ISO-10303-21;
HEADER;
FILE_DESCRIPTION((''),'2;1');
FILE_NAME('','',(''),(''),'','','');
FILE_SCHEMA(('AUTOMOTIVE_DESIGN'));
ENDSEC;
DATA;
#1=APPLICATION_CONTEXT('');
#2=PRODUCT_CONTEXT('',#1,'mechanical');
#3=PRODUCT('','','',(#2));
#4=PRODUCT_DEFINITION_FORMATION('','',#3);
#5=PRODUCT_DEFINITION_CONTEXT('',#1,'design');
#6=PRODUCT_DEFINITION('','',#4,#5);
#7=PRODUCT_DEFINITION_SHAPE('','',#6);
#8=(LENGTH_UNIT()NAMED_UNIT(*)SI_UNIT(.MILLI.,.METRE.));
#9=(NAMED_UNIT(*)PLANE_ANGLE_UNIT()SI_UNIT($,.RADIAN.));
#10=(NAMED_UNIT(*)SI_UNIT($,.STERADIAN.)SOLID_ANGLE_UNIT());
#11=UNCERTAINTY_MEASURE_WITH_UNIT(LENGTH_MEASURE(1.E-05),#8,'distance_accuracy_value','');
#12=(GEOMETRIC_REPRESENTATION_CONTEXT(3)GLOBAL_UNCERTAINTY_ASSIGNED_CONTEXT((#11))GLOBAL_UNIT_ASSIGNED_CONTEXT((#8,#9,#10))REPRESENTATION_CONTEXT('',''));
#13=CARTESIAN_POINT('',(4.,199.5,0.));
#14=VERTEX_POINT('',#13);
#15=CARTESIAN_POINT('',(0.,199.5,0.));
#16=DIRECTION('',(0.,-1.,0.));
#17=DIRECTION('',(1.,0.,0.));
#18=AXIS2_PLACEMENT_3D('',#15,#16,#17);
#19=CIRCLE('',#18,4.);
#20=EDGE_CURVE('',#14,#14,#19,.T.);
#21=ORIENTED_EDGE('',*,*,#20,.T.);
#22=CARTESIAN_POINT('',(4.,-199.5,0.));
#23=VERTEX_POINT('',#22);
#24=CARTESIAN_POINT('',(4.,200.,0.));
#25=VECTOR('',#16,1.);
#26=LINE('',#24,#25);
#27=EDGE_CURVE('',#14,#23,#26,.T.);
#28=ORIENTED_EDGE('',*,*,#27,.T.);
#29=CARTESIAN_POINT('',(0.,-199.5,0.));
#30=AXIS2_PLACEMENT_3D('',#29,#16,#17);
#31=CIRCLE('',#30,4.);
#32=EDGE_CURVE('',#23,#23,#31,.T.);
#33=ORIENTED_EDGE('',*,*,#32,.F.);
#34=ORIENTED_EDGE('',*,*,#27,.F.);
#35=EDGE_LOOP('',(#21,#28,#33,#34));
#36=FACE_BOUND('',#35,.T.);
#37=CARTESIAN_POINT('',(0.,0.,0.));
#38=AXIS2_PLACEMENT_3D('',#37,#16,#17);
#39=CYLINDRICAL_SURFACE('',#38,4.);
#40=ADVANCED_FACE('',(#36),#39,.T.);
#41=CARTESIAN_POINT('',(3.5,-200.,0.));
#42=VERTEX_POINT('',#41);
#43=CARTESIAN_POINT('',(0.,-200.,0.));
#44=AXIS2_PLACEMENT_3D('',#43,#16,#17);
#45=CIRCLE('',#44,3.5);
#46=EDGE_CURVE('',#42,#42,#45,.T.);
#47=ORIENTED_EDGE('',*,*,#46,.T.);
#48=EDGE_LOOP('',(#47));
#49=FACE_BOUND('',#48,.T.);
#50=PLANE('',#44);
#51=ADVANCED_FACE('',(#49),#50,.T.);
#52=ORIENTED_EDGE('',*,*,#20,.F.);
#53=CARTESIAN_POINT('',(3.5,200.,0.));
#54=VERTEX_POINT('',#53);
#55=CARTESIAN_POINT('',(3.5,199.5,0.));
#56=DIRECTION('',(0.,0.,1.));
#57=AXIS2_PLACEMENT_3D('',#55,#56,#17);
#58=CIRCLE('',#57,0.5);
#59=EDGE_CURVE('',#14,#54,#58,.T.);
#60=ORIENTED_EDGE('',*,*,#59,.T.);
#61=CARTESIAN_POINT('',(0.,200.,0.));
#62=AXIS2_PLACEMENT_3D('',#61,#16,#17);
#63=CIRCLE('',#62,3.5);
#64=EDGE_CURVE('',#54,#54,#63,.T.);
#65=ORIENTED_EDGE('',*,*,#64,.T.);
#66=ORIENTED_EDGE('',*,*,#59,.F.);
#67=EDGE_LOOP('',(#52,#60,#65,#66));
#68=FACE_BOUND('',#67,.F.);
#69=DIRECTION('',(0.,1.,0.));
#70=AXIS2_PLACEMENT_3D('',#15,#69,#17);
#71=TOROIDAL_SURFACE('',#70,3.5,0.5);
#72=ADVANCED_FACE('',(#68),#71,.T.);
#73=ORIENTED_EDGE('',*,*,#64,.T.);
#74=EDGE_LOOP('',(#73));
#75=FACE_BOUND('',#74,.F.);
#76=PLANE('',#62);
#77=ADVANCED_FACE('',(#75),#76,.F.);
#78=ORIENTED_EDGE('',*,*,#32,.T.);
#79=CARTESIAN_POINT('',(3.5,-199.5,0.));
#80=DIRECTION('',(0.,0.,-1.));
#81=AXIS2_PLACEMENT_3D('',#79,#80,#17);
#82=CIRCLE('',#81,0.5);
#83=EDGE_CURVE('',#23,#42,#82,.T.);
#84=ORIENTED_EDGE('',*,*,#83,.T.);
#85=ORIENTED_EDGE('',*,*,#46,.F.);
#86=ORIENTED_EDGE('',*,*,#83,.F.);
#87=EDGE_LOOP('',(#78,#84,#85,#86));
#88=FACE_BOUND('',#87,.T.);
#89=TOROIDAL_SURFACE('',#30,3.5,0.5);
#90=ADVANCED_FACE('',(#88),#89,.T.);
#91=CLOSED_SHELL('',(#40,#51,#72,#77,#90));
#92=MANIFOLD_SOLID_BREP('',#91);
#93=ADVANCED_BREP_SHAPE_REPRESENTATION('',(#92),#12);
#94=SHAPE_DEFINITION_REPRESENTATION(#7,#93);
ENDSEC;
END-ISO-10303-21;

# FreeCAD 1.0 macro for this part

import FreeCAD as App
import Part
import Sketcher
from FreeCAD import Vector
Q = App.Units.Quantity


def edges_at(feature, points):
    """Names of the edges that pass closest to the given points."""
    edges = feature.Shape.Edges
    near = lambda p: min(range(len(edges)), key=lambda i: edges[i].distToShape(Part.Vertex(*p))[0])
    return sorted({f"Edge{near(p) + 1}" for p in points})

doc = App.newDocument("Part")
body = doc.addObject("PartDesign::Body", "Body")

# Sketch on XZ plane
sketch1 = doc.addObject("Sketcher::SketchObject", "Sketch")
body.addObject(sketch1)
sketch1.AttachmentSupport = (doc.XZ_Plane, [""])
sketch1.MapMode = "FlatFace"
sketch1.addGeometry(Part.Circle(Vector(0, 0, 0), Vector(0, 0, 1), 4), False)
sketch1.addConstraint(Sketcher.Constraint("Coincident", 0, 3, -1, 1))
sketch1.addConstraint(Sketcher.Constraint("Diameter", 0, Q("8 mm")))
pad1 = doc.addObject("PartDesign::Pad", "Pad")
body.addObject(pad1)
pad1.Profile = sketch1
pad1.Length = 400
pad1.Midplane = True
doc.recompute()

fillet = doc.addObject("PartDesign::Fillet", "Fillet")
body.addObject(fillet)
fillet.Base = (pad1, edges_at(pad1, [(-4, -200, 0), (-4, 200, 0)]))
fillet.Radius = 0.5

doc.recompute()
